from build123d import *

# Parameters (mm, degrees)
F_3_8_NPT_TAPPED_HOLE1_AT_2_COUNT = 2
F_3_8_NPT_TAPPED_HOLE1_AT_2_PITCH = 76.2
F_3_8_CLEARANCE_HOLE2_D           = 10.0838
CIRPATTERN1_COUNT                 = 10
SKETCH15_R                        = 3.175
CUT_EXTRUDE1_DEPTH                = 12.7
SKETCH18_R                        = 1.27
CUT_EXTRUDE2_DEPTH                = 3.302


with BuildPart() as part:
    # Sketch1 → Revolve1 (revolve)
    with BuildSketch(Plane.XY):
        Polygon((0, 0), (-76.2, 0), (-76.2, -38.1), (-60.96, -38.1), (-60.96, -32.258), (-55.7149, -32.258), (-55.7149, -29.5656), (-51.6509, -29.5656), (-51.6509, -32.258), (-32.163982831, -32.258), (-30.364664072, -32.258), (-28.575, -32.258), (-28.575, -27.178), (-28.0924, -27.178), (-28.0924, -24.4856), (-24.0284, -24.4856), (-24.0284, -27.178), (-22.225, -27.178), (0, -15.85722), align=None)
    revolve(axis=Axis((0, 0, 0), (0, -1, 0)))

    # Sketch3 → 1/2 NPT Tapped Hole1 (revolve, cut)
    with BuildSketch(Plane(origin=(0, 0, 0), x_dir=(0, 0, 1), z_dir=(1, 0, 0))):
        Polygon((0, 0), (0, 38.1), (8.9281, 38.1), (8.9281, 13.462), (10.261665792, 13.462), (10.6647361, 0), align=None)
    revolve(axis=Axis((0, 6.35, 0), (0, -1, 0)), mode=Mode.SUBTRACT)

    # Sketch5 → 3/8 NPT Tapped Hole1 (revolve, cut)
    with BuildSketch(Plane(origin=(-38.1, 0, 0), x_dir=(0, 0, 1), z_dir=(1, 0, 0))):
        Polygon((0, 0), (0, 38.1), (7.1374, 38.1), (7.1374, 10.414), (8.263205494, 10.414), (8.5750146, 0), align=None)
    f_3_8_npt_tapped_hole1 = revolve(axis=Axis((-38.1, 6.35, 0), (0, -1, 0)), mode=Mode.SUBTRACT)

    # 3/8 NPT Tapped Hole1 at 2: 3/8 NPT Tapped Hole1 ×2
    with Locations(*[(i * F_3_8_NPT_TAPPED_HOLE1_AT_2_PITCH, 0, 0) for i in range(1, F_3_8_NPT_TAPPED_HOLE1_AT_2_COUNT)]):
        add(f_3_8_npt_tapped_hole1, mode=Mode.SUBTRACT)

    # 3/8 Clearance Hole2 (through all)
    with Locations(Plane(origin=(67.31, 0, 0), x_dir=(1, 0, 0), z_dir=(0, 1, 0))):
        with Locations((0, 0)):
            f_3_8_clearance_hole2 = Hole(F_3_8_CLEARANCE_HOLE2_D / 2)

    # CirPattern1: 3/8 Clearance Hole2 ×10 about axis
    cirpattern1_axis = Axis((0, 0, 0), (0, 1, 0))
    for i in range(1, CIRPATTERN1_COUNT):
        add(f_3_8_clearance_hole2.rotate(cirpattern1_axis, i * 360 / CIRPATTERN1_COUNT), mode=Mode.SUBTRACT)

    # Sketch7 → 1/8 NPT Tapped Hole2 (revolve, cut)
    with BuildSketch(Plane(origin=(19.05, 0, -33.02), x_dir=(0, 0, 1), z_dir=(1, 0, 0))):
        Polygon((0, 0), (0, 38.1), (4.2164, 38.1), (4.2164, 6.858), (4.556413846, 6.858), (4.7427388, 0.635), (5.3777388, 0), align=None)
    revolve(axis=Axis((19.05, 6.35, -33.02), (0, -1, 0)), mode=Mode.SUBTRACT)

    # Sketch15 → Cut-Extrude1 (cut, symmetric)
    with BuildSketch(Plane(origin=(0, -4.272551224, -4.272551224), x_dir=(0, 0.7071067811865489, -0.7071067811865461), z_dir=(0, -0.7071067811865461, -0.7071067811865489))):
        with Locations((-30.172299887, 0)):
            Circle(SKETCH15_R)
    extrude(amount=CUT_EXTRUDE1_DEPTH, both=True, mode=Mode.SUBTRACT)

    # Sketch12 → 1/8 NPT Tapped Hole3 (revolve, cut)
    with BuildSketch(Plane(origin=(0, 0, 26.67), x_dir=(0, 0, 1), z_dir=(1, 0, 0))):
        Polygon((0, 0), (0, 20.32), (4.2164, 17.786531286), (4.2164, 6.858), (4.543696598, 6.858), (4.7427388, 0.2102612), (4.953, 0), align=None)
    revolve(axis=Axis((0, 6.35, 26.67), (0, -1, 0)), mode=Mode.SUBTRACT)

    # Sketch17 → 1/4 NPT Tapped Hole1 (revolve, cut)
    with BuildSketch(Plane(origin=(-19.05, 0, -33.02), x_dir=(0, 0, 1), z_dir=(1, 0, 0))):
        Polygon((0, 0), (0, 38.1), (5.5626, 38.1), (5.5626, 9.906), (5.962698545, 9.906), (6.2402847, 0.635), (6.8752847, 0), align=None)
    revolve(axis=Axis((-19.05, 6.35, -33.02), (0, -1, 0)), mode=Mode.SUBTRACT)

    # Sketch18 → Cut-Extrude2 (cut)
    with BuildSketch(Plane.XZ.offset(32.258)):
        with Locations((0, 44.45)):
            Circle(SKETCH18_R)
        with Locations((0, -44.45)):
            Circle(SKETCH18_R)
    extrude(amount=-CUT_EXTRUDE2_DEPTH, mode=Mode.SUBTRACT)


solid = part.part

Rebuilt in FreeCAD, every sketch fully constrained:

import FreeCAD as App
import Part
import Sketcher
Q = App.Units.Quantity


def add_polygon(sketch, points):
    """Adds a closed chain of lines whose ends are joined by coincident constraints."""
    first, n = sketch.GeometryCount, len(points)
    for a, b in zip(points, points[1:] + points[:1]):
        sketch.addGeometry(Part.LineSegment(App.Vector(*a, 0), App.Vector(*b, 0)), False)
    for i in range(n):
        sketch.addConstraint(Sketcher.Constraint("Coincident", first + i, 2, first + (i + 1) % n, 1))

doc = App.newDocument("Part")
params = doc.addObject("Spreadsheet::Sheet", "Params")
for row, (alias, value) in enumerate([
    ("sketch1_width", "3 in"),
    ("sketch1_width2", "0.6 in"),
    ("sketch1_height", "1.5 in"),
    ("sketch1_height2", "0.2 in"),
    ("sketch1_width3", "0.16 in"),
    ("revolution_angle", "360 deg"),
    ("sketch2_width", "1.5 in"),
    ("sketch2_width2", "0.97 in"),
    ("groove_angle", "360 deg"),
    ("sketch3_width", "1.5 in"),
    ("sketch3_width2", "1.09 in"),
    ("sketch3_height", "0.281 in"),
    ("groove2_angle", "360 deg"),
    ("linearpattern_pitch", "3 in"),
    ("sketch4_diameter", "0.397 in"),
    ("hole_diameter", "0.397 in"),
    ("sketch5_width", "1.5 in"),
    ("sketch5_width2", "1.23 in"),
    ("sketch5_height", "0.166 in"),
    ("groove3_angle", "360 deg"),
    ("sketch6_diameter", "0.25 in"),
    ("pocket1_length", "1 in"),
    ("sketch7_width", "0.8 in"),
    ("sketch7_height", "0.195 in"),
    ("groove4_angle", "360 deg"),
    ("sketch8_width", "1.5 in"),
    ("sketch8_width2", "1.11 in"),
    ("sketch8_height", "0.219 in"),
    ("groove5_angle", "360 deg"),
    ("sketch9_diameter", "0.1 in"),
    ("pocket2_length", "0.13 in"),
], start=1):
    params.set(f"A{row}", alias)
    params.set(f"B{row}", "=" + value)
    params.setAlias(f"B{row}", alias)

body = doc.addObject("PartDesign::Body", "Body")

# Sketch on XY plane
sketch1 = body.newObject("Sketcher::SketchObject", "Sketch")
sketch1.AttachmentSupport = (doc.getObject("XY_Plane"), [""])
sketch1.MapMode = "FlatFace"
add_polygon(sketch1, [(0, 0), (-76.2, 0), (-76.2, -38.1), (-60.96, -38.1), (-60.96, -32.26), (-55.71, -32.26), (-55.71, -29.57), (-51.65, -29.57), (-51.65, -32.26), (-28.57, -32.26), (-28.57, -27.18), (-28.09, -27.18), (-28.09, -24.49), (-24.03, -24.49), (-24.03, -27.18), (-22.23, -27.18), (0, -15.86)])  # lines 0-16
sketch1.addConstraint(Sketcher.Constraint("Horizontal", 0))
sketch1.addConstraint(Sketcher.Constraint("Vertical", 1))
sketch1.addConstraint(Sketcher.Constraint("Horizontal", 2))
sketch1.addConstraint(Sketcher.Constraint("Vertical", 3))
sketch1.addConstraint(Sketcher.Constraint("Horizontal", 4))
sketch1.addConstraint(Sketcher.Constraint("Vertical", 5))
sketch1.addConstraint(Sketcher.Constraint("Horizontal", 6))
sketch1.addConstraint(Sketcher.Constraint("Vertical", 7))
sketch1.addConstraint(Sketcher.Constraint("Horizontal", 8))
sketch1.addConstraint(Sketcher.Constraint("Vertical", 9))
sketch1.addConstraint(Sketcher.Constraint("Horizontal", 10))
sketch1.addConstraint(Sketcher.Constraint("Vertical", 11))
sketch1.addConstraint(Sketcher.Constraint("Horizontal", 12))
sketch1.addConstraint(Sketcher.Constraint("Vertical", 13))
sketch1.addConstraint(Sketcher.Constraint("Horizontal", 14))
sketch1.addConstraint(Sketcher.Constraint("Vertical", 16))
sketch1.addConstraint(Sketcher.Constraint("Coincident", 16, 2, -1, 1))
sketch1.addConstraint(Sketcher.Constraint("Horizontal", 4, 2, 7, 2))
sketch1.addConstraint(Sketcher.Constraint("Horizontal", 10, 2, 13, 2))
sketch1.addConstraint(Sketcher.Constraint("Equal", 6, 12))
sketch1.addConstraint(Sketcher.Constraint("Equal", 7, 11))
sketch1.addConstraint(Sketcher.Constraint("DistanceX", 0, 2, 0, 1, Q("3 in")))
sketch1.addConstraint(Sketcher.Constraint("DistanceX", 2, 1, 2, 2, Q("0.6 in")))
sketch1.addConstraint(Sketcher.Constraint("DistanceY", 1, 2, 1, 1, Q("1.5 in")))
sketch1.addConstraint(Sketcher.Constraint("DistanceY", 9, 1, 9, 2, Q("0.2 in")))
sketch1.addConstraint(Sketcher.Constraint("DistanceX", 6, 1, 6, 2, Q("0.16 in")))
sketch1.addConstraint(Sketcher.Constraint("DistanceY", 3, 1, 3, 2, Q("0.23 in")))
sketch1.addConstraint(Sketcher.Constraint("DistanceX", 10, 1, 10, 2, Q("0.019 in")))
sketch1.addConstraint(Sketcher.Constraint("DistanceX", 14, 1, 14, 2, Q("0.071 in")))
sketch1.addConstraint(Sketcher.Constraint("DistanceY", 5, 1, 5, 2, Q("0.106 in")))
sketch1.addConstraint(Sketcher.Constraint("DistanceX", 4, 1, 4, 2, Q("0.2065 in")))
sketch1.addConstraint(Sketcher.Constraint("DistanceX", 8, 1, 8, 2, Q("0.9085 in")))
sketch1.addConstraint(Sketcher.Constraint("DistanceY", 16, 1, 16, 2, Q("0.6243 in")))
sketch1.setExpression("Constraints[38]", "Params.sketch1_width")
sketch1.setExpression("Constraints[39]", "Params.sketch1_width2")
sketch1.setExpression("Constraints[40]", "Params.sketch1_height")
sketch1.setExpression("Constraints[41]", "Params.sketch1_height2")
sketch1.setExpression("Constraints[42]", "Params.sketch1_width3")
revolution = body.newObject("PartDesign::Revolution", "Revolution")
revolution.Profile = sketch1
revolution.ReferenceAxis = (sketch1, ["V_Axis"])
revolution.setExpression("Angle", "Params.revolution_angle")

# Sketch on YZ plane
sketch2 = body.newObject("Sketcher::SketchObject", "Sketch001")
sketch2.AttachmentSupport = (doc.getObject("YZ_Plane"), [""])
sketch2.MapMode = "FlatFace"
add_polygon(sketch2, [(-38.1, 0), (0, 0), (0, 10.7), (-13.5, 10.3), (-13.5, 8.9), (-38.1, 8.9)])  # lines 0-5
sketch2.addConstraint(Sketcher.Constraint("Horizontal", 0))
sketch2.addConstraint(Sketcher.Constraint("Vertical", 1))
sketch2.addConstraint(Sketcher.Constraint("Vertical", 3))
sketch2.addConstraint(Sketcher.Constraint("Horizontal", 4))
sketch2.addConstraint(Sketcher.Constraint("Vertical", 5))
sketch2.addConstraint(Sketcher.Constraint("Coincident", 0, 2, -1, 1))
sketch2.addConstraint(Sketcher.Constraint("DistanceX", 0, 1, 0, 2, Q("1.5 in")))
sketch2.addConstraint(Sketcher.Constraint("DistanceX", 4, 2, 4, 1, Q("0.97 in")))
sketch2.addConstraint(Sketcher.Constraint("DistanceY", 5, 2, 5, 1, Q("0.3515 in")))
sketch2.addConstraint(Sketcher.Constraint("DistanceY", 1, 1, 1, 2, 10.664736))
sketch2.addConstraint(Sketcher.Constraint("DistanceY", 3, 2, 3, 1, 1.333566))
sketch2.setExpression("Constraints[12]", "Params.sketch2_width")
sketch2.setExpression("Constraints[13]", "Params.sketch2_width2")
groove = body.newObject("PartDesign::Groove", "Groove")
groove.Profile = sketch2
groove.ReferenceAxis = (sketch2, ["H_Axis"])
groove.setExpression("Angle", "Params.groove_angle")

# Sketch on YZ plane
sketch3 = body.newObject("Sketcher::SketchObject", "Sketch002")
sketch3.AttachmentSupport = (doc.getObject("YZ_Plane"), [""])
sketch3.MapMode = "FlatFace"
sketch3.AttachmentOffset = App.Placement(App.Vector(0, 0, -1.5 * 25.4), App.Rotation())
add_polygon(sketch3, [(-38.1, 0), (0, 0), (0, 8.6), (-10.4, 8.3), (-10.4, 7.1), (-38.1, 7.1)])  # lines 0-5
sketch3.addConstraint(Sketcher.Constraint("Horizontal", 0))
sketch3.addConstraint(Sketcher.Constraint("Vertical", 1))
sketch3.addConstraint(Sketcher.Constraint("Vertical", 3))
sketch3.addConstraint(Sketcher.Constraint("Horizontal", 4))
sketch3.addConstraint(Sketcher.Constraint("Vertical", 5))
sketch3.addConstraint(Sketcher.Constraint("Coincident", 0, 2, -1, 1))
sketch3.addConstraint(Sketcher.Constraint("DistanceX", 0, 1, 0, 2, Q("1.5 in")))
sketch3.addConstraint(Sketcher.Constraint("DistanceX", 4, 2, 4, 1, Q("1.09 in")))
sketch3.addConstraint(Sketcher.Constraint("DistanceY", 5, 2, 5, 1, Q("0.281 in")))
sketch3.addConstraint(Sketcher.Constraint("DistanceY", 1, 1, 1, 2, 8.575015))
sketch3.addConstraint(Sketcher.Constraint("DistanceY", 3, 2, 3, 1, 1.125805))
sketch3.setExpression("Constraints[12]", "Params.sketch3_width")
sketch3.setExpression("Constraints[13]", "Params.sketch3_width2")
sketch3.setExpression("Constraints[14]", "Params.sketch3_height")
groove2 = body.newObject("PartDesign::Groove", "Groove001")
groove2.Profile = sketch3
groove2.ReferenceAxis = (sketch3, ["H_Axis"])
groove2.setExpression("Angle", "Params.groove2_angle")
doc.recompute()

linearpattern = body.newObject("PartDesign::LinearPattern", "LinearPattern")
linearpattern.Originals = [groove2]
linearpattern.Direction = (doc.getObject("X_Axis"), [""])
linearpattern.Mode = "offset"
linearpattern.setExpression("Offset", "Params.linearpattern_pitch")
linearpattern.Occurrences = 2
body.Tip = linearpattern

# Sketch on XZ plane
sketch4 = body.newObject("Sketcher::SketchObject", "Sketch003")
sketch4.AttachmentSupport = (doc.getObject("XZ_Plane"), [""])
sketch4.MapMode = "FlatFace"
sketch4.addGeometry(Part.Circle(App.Vector(67, 0, 0), App.Vector(0, 0, 1), 5), False)
sketch4.addConstraint(Sketcher.Constraint("PointOnObject", 0, 3, -1))
sketch4.addConstraint(Sketcher.Constraint("Diameter", 0, Q("0.397 in")))
sketch4.addConstraint(Sketcher.Constraint("DistanceX", -1, 1, 0, 3, Q("2.65 in")))
sketch4.setExpression("Constraints[1]", "Params.sketch4_diameter")
doc.recompute()
hole = body.newObject("PartDesign::Hole", "Hole")
hole.Profile = sketch4
hole.ThreadType = "None"
hole.setExpression("Diameter", "Params.hole_diameter")
hole.DepthType = "ThroughAll"
hole.Reversed = True
doc.recompute()

polarpattern = body.newObject("PartDesign::PolarPattern", "PolarPattern")
polarpattern.Originals = [hole]
polarpattern.Axis = (doc.getObject("Y_Axis"), [""])
polarpattern.Angle = 360
polarpattern.Occurrences = 10
body.Tip = polarpattern

# Sketch on YZ plane
sketch5 = body.newObject("Sketcher::SketchObject", "Sketch004")
sketch5.AttachmentSupport = (doc.getObject("YZ_Plane"), [""])
sketch5.MapMode = "FlatFace"
sketch5.AttachmentOffset = App.Placement(App.Vector(0, 0, 0.75 * 25.4), App.Rotation())
add_polygon(sketch5, [(-38.1, -33.02), (0, -33.02), (0, -27.64), (-0.64, -28.28), (-6.86, -28.46), (-6.86, -28.8), (-38.1, -28.8)])  # lines 0-6
sketch5.addGeometry(Part.LineSegment(App.Vector(0, -33.02, 0), App.Vector(-38.1, -33.02, 0)), True)  # axis
sketch5.addConstraint(Sketcher.Constraint("Horizontal", 0))
sketch5.addConstraint(Sketcher.Constraint("Vertical", 1))
sketch5.addConstraint(Sketcher.Constraint("Vertical", 4))
sketch5.addConstraint(Sketcher.Constraint("Horizontal", 5))
sketch5.addConstraint(Sketcher.Constraint("Vertical", 6))
sketch5.addConstraint(Sketcher.Constraint("Horizontal", 7))
sketch5.addConstraint(Sketcher.Constraint("Coincident", 7, 1, 0, 2))
sketch5.addConstraint(Sketcher.Constraint("PointOnObject", 0, 2, -2))
sketch5.addConstraint(Sketcher.Constraint("Vertical", 5, 2, 7, 2))
sketch5.addConstraint(Sketcher.Constraint("DistanceX", 0, 1, 0, 2, Q("1.5 in")))
sketch5.addConstraint(Sketcher.Constraint("Angle", 2, Q("-135 deg")))
sketch5.addConstraint(Sketcher.Constraint("DistanceX", 5, 2, 5, 1, Q("1.23 in")))
sketch5.addConstraint(Sketcher.Constraint("DistanceY", 0, 2, -1, 1, Q("1.3 in")))
sketch5.addConstraint(Sketcher.Constraint("DistanceY", 6, 2, 6, 1, Q("0.166 in")))
sketch5.addConstraint(Sketcher.Constraint("DistanceX", 2, 2, -1, 1, Q("0.025 in")))
sketch5.addConstraint(Sketcher.Constraint("DistanceY", 1, 1, 1, 2, 5.377739))
sketch5.addConstraint(Sketcher.Constraint("Distance", 3, 6.225789))
sketch5.setExpression("Constraints[16]", "Params.sketch5_width")
sketch5.setExpression("Constraints[18]", "Params.sketch5_width2")
sketch5.setExpression("Constraints[20]", "Params.sketch5_height")
groove3 = body.newObject("PartDesign::Groove", "Groove002")
groove3.Profile = sketch5
groove3.ReferenceAxis = (sketch5, ["Axis0"])
groove3.setExpression("Angle", "Params.groove3_angle")

# Sketch on an angled plane
sketch6 = body.newObject("Sketcher::SketchObject", "Sketch005")
sketch6.Placement = App.Placement(App.Vector(0, -4.272551, -4.272551), App.Rotation(App.Vector(0, 0.707106781, -0.707106781), App.Vector(0.999999999, 0, 0), App.Vector(0, -0.707106781, -0.707106781), "ZXY"))
sketch6.addGeometry(Part.Circle(App.Vector(-30.2, 0, 0), App.Vector(0, 0, 1), 3.2), False)
sketch6.addConstraint(Sketcher.Constraint("PointOnObject", 0, 3, -1))
sketch6.addConstraint(Sketcher.Constraint("Diameter", 0, Q("0.25 in")))
sketch6.addConstraint(Sketcher.Constraint("DistanceX", 0, 3, -1, 1, 30.1723))
sketch6.setExpression("Constraints[1]", "Params.sketch6_diameter")
pocket1 = body.newObject("PartDesign::Pocket", "Pocket")
pocket1.Profile = sketch6
pocket1.setExpression("Length", "Params.pocket1_length")
pocket1.Midplane = True

# Sketch on YZ plane
sketch7 = body.newObject("Sketcher::SketchObject", "Sketch006")
sketch7.AttachmentSupport = (doc.getObject("YZ_Plane"), [""])
sketch7.MapMode = "FlatFace"
add_polygon(sketch7, [(-20.32, 26.67), (0, 26.67), (0, 31.62), (-0.21, 31.41), (-6.86, 31.21), (-6.86, 30.89), (-17.79, 30.89)])  # lines 0-6
sketch7.addGeometry(Part.LineSegment(App.Vector(0, 26.67, 0), App.Vector(-20.32, 26.67, 0)), True)  # axis
sketch7.addConstraint(Sketcher.Constraint("Horizontal", 0))
sketch7.addConstraint(Sketcher.Constraint("Vertical", 1))
sketch7.addConstraint(Sketcher.Constraint("Vertical", 4))
sketch7.addConstraint(Sketcher.Constraint("Horizontal", 5))
sketch7.addConstraint(Sketcher.Constraint("Horizontal", 7))
sketch7.addConstraint(Sketcher.Constraint("Coincident", 7, 1, 0, 2))
sketch7.addConstraint(Sketcher.Constraint("PointOnObject", 0, 2, -2))
sketch7.addConstraint(Sketcher.Constraint("Equal", 0, 7))
sketch7.addConstraint(Sketcher.Constraint("DistanceX", 0, 1, 0, 2, Q("0.8 in")))
sketch7.addConstraint(Sketcher.Constraint("Angle", 2, Q("-135 deg")))
sketch7.addConstraint(Sketcher.Constraint("Angle", 6, Q("-121 deg")))
sketch7.addConstraint(Sketcher.Constraint("DistanceY", 1, 1, 1, 2, Q("0.195 in")))
sketch7.addConstraint(Sketcher.Constraint("DistanceY", -1, 1, 0, 2, Q("1.05 in")))
sketch7.addConstraint(Sketcher.Constraint("DistanceX", 3, 2, -1, 1, Q("0.27 in")))
sketch7.addConstraint(Sketcher.Constraint("DistanceY", -1, 1, 4, 2, Q("1.216 in")))
sketch7.addConstraint(Sketcher.Constraint("DistanceY", 4, 2, 4, 1, 0.327297))
sketch7.addConstraint(Sketcher.Constraint("DistanceX", 2, 2, -1, 1, 0.210261))
sketch7.setExpression("Constraints[15]", "Params.sketch7_width")
sketch7.setExpression("Constraints[18]", "Params.sketch7_height")
groove4 = body.newObject("PartDesign::Groove", "Groove003")
groove4.Profile = sketch7
groove4.ReferenceAxis = (sketch7, ["Axis0"])
groove4.setExpression("Angle", "Params.groove4_angle")

# Sketch on YZ plane
sketch8 = body.newObject("Sketcher::SketchObject", "Sketch007")
sketch8.AttachmentSupport = (doc.getObject("YZ_Plane"), [""])
sketch8.MapMode = "FlatFace"
sketch8.AttachmentOffset = App.Placement(App.Vector(0, 0, -0.75 * 25.4), App.Rotation())
add_polygon(sketch8, [(-38.1, -33.02), (0, -33.02), (0, -26.14), (-0.64, -26.78), (-9.91, -27.06), (-9.91, -27.46), (-38.1, -27.46)])  # lines 0-6
sketch8.addGeometry(Part.LineSegment(App.Vector(0, -33.02, 0), App.Vector(-38.1, -33.02, 0)), True)  # axis
sketch8.addConstraint(Sketcher.Constraint("Horizontal", 0))
sketch8.addConstraint(Sketcher.Constraint("Vertical", 1))
sketch8.addConstraint(Sketcher.Constraint("Vertical", 4))
sketch8.addConstraint(Sketcher.Constraint("Horizontal", 5))
sketch8.addConstraint(Sketcher.Constraint("Vertical", 6))
sketch8.addConstraint(Sketcher.Constraint("Horizontal", 7))
sketch8.addConstraint(Sketcher.Constraint("Coincident", 7, 1, 0, 2))
sketch8.addConstraint(Sketcher.Constraint("PointOnObject", 0, 2, -2))
sketch8.addConstraint(Sketcher.Constraint("Vertical", 5, 2, 7, 2))
sketch8.addConstraint(Sketcher.Constraint("DistanceX", 0, 1, 0, 2, Q("1.5 in")))
sketch8.addConstraint(Sketcher.Constraint("Angle", 2, Q("-135 deg")))
sketch8.addConstraint(Sketcher.Constraint("DistanceX", 5, 2, 5, 1, Q("1.11 in")))
sketch8.addConstraint(Sketcher.Constraint("DistanceY", 0, 2, -1, 1, Q("1.3 in")))
sketch8.addConstraint(Sketcher.Constraint("DistanceY", 6, 2, 6, 1, Q("0.219 in")))
sketch8.addConstraint(Sketcher.Constraint("DistanceX", 2, 2, -1, 1, Q("0.025 in")))
sketch8.addConstraint(Sketcher.Constraint("DistanceY", 4, 2, 4, 1, 0.400099))
sketch8.addConstraint(Sketcher.Constraint("DistanceY", 1, 1, 1, 2, 6.875285))
sketch8.setExpression("Constraints[16]", "Params.sketch8_width")
sketch8.setExpression("Constraints[18]", "Params.sketch8_width2")
sketch8.setExpression("Constraints[20]", "Params.sketch8_height")
groove5 = body.newObject("PartDesign::Groove", "Groove004")
groove5.Profile = sketch8
groove5.ReferenceAxis = (sketch8, ["Axis0"])
groove5.setExpression("Angle", "Params.groove5_angle")

# Sketch on XZ plane
sketch9 = body.newObject("Sketcher::SketchObject", "Sketch008")
sketch9.AttachmentSupport = (doc.getObject("XZ_Plane"), [""])
sketch9.MapMode = "FlatFace"
sketch9.AttachmentOffset = App.Placement(App.Vector(0, 0, 1.27 * 25.4), App.Rotation())
sketch9.addGeometry(Part.Circle(App.Vector(0, 44.5, 0), App.Vector(0, 0, 1), 1.3), False)
sketch9.addGeometry(Part.Circle(App.Vector(0, -44.5, 0), App.Vector(0, 0, 1), 1.3), False)
sketch9.addConstraint(Sketcher.Constraint("Equal", 0, 1))
sketch9.addConstraint(Sketcher.Constraint("Symmetric", 0, 3, 1, 3, -1, 1))
sketch9.addConstraint(Sketcher.Constraint("PointOnObject", 0, 3, -2))
sketch9.addConstraint(Sketcher.Constraint("Diameter", 0, Q("0.1 in")))
sketch9.addConstraint(Sketcher.Constraint("DistanceY", 1, 3, 0, 3, Q("3.5 in")))
sketch9.setExpression("Constraints[3]", "Params.sketch9_diameter")
pocket2 = body.newObject("PartDesign::Pocket", "Pocket001")
pocket2.Profile = sketch9
pocket2.setExpression("Length", "Params.pocket2_length")

doc.recompute()
